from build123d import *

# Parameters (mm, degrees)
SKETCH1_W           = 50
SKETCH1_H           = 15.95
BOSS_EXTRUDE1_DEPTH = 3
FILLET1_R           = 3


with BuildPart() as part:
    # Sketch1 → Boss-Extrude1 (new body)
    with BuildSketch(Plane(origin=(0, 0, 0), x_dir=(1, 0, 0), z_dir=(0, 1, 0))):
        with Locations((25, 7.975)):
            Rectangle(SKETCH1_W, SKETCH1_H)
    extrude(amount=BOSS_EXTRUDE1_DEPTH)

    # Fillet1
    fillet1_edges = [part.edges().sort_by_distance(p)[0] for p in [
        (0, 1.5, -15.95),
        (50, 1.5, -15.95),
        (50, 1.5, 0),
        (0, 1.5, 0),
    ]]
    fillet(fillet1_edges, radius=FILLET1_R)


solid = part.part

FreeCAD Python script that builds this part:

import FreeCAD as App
import Part
import Sketcher


def edges_at(feature, points):
    """Names of the edges that pass closest to the given points."""
    edges = feature.Shape.Edges
    near = lambda p: min(range(len(edges)), key=lambda i: edges[i].distToShape(Part.Vertex(*p))[0])
    return sorted({f"Edge{near(p) + 1}" for p in points})


def add_polygon(sketch, points):
    """Adds a closed chain of lines whose ends are joined by coincident constraints."""
    first, n = sketch.GeometryCount, len(points)
    for a, b in zip(points, points[1:] + points[:1]):
        sketch.addGeometry(Part.LineSegment(App.Vector(*a, 0), App.Vector(*b, 0)), False)
    for i in range(n):
        sketch.addConstraint(Sketcher.Constraint("Coincident", first + i, 2, first + (i + 1) % n, 1))

doc = App.newDocument("Part")
body = doc.addObject("PartDesign::Body", "Body")

# Sketch on XZ plane
sketch1 = body.newObject("Sketcher::SketchObject", "Sketch")
sketch1.AttachmentSupport = (doc.getObject("XZ_Plane"), [""])
sketch1.MapMode = "FlatFace"
add_polygon(sketch1, [(0, -16), (0, 0), (50, 0), (50, -16)])  # lines 0-3
sketch1.addConstraint([
    Sketcher.Constraint("Vertical", 0),
    Sketcher.Constraint("Horizontal", 1),
    Sketcher.Constraint("Vertical", 2),
    Sketcher.Constraint("Horizontal", 3),
    Sketcher.Constraint("Coincident", 0, 2, -1, 1),
    Sketcher.Constraint("DistanceX", 1, 1, 1, 2, 50.0),
    Sketcher.Constraint("DistanceY", 0, 1, 0, 2, 15.95),
])
pad1 = body.newObject("PartDesign::Pad", "Pad")
pad1.Profile = sketch1
pad1.Length = 3
pad1.Reversed = True
doc.recompute()

fillet = body.newObject("PartDesign::Fillet", "Fillet")
fillet.Base = (pad1, edges_at(pad1, [
    (0, 1.5, -15.95),
    (50, 1.5, -15.95),
    (50, 1.5, 0),
    (0, 1.5, 0),
]))
fillet.Radius = 3

doc.recompute()
